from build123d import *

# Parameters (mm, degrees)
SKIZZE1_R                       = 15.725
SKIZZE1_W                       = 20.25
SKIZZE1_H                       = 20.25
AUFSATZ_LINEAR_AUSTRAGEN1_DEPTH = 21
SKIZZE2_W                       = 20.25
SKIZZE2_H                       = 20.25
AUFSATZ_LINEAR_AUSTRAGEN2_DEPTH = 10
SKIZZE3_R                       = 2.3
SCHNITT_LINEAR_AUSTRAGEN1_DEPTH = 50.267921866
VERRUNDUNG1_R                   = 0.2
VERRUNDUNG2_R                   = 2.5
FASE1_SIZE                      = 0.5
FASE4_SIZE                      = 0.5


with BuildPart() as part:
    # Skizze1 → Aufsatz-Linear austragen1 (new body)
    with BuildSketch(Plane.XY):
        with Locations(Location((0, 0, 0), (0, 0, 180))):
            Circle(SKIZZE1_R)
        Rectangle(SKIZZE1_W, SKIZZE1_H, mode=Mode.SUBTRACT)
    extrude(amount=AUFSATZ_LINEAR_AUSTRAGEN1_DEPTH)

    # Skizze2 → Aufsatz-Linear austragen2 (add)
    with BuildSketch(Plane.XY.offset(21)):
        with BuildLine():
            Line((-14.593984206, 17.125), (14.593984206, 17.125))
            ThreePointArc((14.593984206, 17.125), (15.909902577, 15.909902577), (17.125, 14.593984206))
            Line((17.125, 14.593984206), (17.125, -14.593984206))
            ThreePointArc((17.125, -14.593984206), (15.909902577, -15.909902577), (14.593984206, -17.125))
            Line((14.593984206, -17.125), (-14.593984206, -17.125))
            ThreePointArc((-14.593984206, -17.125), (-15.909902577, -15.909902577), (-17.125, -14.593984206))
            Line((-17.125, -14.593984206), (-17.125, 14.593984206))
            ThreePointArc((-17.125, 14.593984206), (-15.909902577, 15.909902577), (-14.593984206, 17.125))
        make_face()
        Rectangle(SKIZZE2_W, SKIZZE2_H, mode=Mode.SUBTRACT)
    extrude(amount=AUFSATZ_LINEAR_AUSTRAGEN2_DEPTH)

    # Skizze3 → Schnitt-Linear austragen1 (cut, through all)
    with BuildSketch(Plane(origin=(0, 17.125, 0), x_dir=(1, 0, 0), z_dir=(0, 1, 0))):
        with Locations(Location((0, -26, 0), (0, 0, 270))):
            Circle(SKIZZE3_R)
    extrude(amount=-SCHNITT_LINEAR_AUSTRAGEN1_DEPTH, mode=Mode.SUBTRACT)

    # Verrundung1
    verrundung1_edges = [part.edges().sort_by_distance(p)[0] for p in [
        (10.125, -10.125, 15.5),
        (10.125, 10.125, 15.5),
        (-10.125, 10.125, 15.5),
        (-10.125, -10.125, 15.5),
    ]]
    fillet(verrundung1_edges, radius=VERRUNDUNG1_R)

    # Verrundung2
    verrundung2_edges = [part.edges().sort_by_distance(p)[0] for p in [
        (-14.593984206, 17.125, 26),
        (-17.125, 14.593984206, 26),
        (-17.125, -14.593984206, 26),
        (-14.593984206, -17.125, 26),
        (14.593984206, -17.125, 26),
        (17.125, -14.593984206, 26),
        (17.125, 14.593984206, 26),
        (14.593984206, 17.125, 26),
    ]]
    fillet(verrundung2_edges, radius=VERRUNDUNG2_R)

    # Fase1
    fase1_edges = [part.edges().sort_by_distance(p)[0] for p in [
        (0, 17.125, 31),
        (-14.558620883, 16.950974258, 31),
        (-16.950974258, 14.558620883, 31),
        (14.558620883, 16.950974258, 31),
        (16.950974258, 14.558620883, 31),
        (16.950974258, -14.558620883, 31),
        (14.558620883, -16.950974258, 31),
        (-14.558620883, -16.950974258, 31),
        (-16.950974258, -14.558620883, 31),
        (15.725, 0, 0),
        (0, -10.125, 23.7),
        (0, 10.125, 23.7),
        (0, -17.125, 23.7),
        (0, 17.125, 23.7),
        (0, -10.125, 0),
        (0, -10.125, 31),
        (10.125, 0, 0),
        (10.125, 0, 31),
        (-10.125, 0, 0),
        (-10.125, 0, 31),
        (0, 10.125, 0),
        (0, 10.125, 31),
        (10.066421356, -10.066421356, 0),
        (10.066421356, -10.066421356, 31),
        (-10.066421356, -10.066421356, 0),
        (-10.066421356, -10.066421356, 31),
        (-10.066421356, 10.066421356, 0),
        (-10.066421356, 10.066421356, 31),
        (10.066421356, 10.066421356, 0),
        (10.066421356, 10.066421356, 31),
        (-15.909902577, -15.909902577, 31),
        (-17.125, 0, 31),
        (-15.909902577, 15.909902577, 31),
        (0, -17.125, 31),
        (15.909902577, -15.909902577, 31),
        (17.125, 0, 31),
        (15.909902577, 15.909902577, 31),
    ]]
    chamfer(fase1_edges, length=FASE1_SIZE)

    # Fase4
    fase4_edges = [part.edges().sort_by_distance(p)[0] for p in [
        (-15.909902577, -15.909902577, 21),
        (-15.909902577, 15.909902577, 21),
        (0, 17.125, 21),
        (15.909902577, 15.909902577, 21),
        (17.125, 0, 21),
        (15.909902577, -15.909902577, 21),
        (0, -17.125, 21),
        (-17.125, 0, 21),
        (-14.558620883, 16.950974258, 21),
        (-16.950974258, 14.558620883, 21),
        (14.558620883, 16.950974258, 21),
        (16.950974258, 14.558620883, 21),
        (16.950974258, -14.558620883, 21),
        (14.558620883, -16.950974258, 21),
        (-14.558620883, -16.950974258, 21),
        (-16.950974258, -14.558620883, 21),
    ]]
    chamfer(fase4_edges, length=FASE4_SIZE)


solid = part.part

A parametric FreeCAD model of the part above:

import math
import FreeCAD as App
import Part
import Sketcher

V = App.Vector


def edges_at(feature, points):
    """Names of the edges that pass closest to the given points."""
    edges = feature.Shape.Edges
    near = lambda p: min(range(len(edges)), key=lambda i: edges[i].distToShape(Part.Vertex(*p))[0])
    return sorted({f"Edge{near(p) + 1}" for p in points})


def add_polygon(sketch, points):
    """Adds a closed chain of lines whose ends are joined by coincident constraints."""
    first, n = sketch.GeometryCount, len(points)
    for a, b in zip(points, points[1:] + points[:1]):
        sketch.addGeometry(Part.LineSegment(App.Vector(*a, 0), App.Vector(*b, 0)), False)
    for i in range(n):
        sketch.addConstraint(Sketcher.Constraint("Coincident", first + i, 2, first + (i + 1) % n, 1))

doc = App.newDocument("Part")
params = doc.addObject("Spreadsheet::Sheet", "Params")
for row, (alias, value) in enumerate([
    ("sketch1_diameter", "31.45 mm"),
    ("sketch1_width", "20.25 mm"),
    ("pad1_length", "21 mm"),
    ("sketch2_radius", "22.5 mm"),
    ("sketch2_width", "20.25 mm"),
    ("pad2_length", "10 mm"),
    ("sketch3_diameter", "4.6 mm"),
    ("fillet_radius", "0.2 mm"),
    ("fillet2_radius", "2.5 mm"),
    ("chamfer_size", "0.5 mm"),
    ("chamfer2_size", "0.5 mm"),
], start=1):
    params.set(f"A{row}", alias)
    params.set(f"B{row}", "=" + value)
    params.setAlias(f"B{row}", alias)

body = doc.addObject("PartDesign::Body", "Body")

sketch1 = doc.addObject("Sketcher::SketchObject", "Sketch")
body.addObject(sketch1)
sketch1.AttachmentSupport = (doc.XY_Plane, [""])
sketch1.MapMode = "FlatFace"
sketch1.addGeometry(Part.Circle(V(0, 0, 0), V(0, 0, 1), 15.725), False)
add_polygon(sketch1, [(10.125, -10.125), (-10.125, -10.125), (-10.125, 10.125), (10.125, 10.125)])
sketch1.addConstraint(Sketcher.Constraint("Horizontal", 1))
sketch1.addConstraint(Sketcher.Constraint("Vertical", 2))
sketch1.addConstraint(Sketcher.Constraint("Horizontal", 3))
sketch1.addConstraint(Sketcher.Constraint("Vertical", 4))
sketch1.addConstraint(Sketcher.Constraint("Coincident", 0, 3, -1, 1))
sketch1.addConstraint(Sketcher.Constraint("Symmetric", 1, 2, 3, 2, -1, 1))
sketch1.addConstraint(Sketcher.Constraint("Equal", 3, 2))
sketch1.addConstraint(Sketcher.Constraint("Diameter", 0, 31.45))
sketch1.addConstraint(Sketcher.Constraint("DistanceX", 1, 2, 1, 1, 20.25))
sketch1.setExpression("Constraints[11]", "Params.sketch1_diameter")
sketch1.setExpression("Constraints[12]", "Params.sketch1_width")
pad1 = doc.addObject("PartDesign::Pad", "Pad")
body.addObject(pad1)
pad1.Profile = sketch1
pad1.setExpression("Length", "Params.pad1_length")

sketch2 = doc.addObject("Sketcher::SketchObject", "Sketch001")
body.addObject(sketch2)
sketch2.AttachmentSupport = (doc.XY_Plane, [""])
sketch2.MapMode = "FlatFace"
sketch2.AttachmentOffset = App.Placement(V(0, 0, 21), App.Rotation())
sketch2.addGeometry(Part.LineSegment(V(14.593984, 17.125, 0), V(-14.593984, 17.125, 0)), False)
sketch2.addGeometry(Part.ArcOfCircle(Part.Circle(V(0, 0, 0), V(0, 0, 1), 22.5), math.radians(130.437751), math.radians(139.562249)), False)
sketch2.addGeometry(Part.LineSegment(V(-17.125, 14.593984, 0), V(-17.125, -14.593984, 0)), False)
sketch2.addGeometry(Part.ArcOfCircle(Part.Circle(V(0, 0, 0), V(0, 0, 1), 22.5), math.radians(-139.562249), math.radians(-130.437751)), False)
sketch2.addGeometry(Part.LineSegment(V(-14.593984, -17.125, 0), V(14.593984, -17.125, 0)), False)
sketch2.addGeometry(Part.ArcOfCircle(Part.Circle(V(0, 0, 0), V(0, 0, 1), 22.5), math.radians(-49.562249), math.radians(-40.437751)), False)
sketch2.addGeometry(Part.LineSegment(V(17.125, -14.593984, 0), V(17.125, 14.593984, 0)), False)
sketch2.addGeometry(Part.ArcOfCircle(Part.Circle(V(0, 0, 0), V(0, 0, 1), 22.5), math.radians(40.437751), math.radians(49.562249)), False)
add_polygon(sketch2, [(-10.125, -10.125), (-10.125, 10.125), (10.125, 10.125), (10.125, -10.125)])
sketch2.addConstraint(Sketcher.Constraint("Coincident", 0, 2, 1, 1))
sketch2.addConstraint(Sketcher.Constraint("Coincident", 1, 2, 2, 1))
sketch2.addConstraint(Sketcher.Constraint("Coincident", 2, 2, 3, 1))
sketch2.addConstraint(Sketcher.Constraint("Coincident", 3, 2, 4, 1))
sketch2.addConstraint(Sketcher.Constraint("Coincident", 4, 2, 5, 1))
sketch2.addConstraint(Sketcher.Constraint("Coincident", 5, 2, 6, 1))
sketch2.addConstraint(Sketcher.Constraint("Coincident", 6, 2, 7, 1))
sketch2.addConstraint(Sketcher.Constraint("Coincident", 7, 2, 0, 1))
sketch2.addConstraint(Sketcher.Constraint("Horizontal", 0))
sketch2.addConstraint(Sketcher.Constraint("Vertical", 2))
sketch2.addConstraint(Sketcher.Constraint("Horizontal", 4))
sketch2.addConstraint(Sketcher.Constraint("Vertical", 6))
sketch2.addConstraint(Sketcher.Constraint("Vertical", 8))
sketch2.addConstraint(Sketcher.Constraint("Horizontal", 9))
sketch2.addConstraint(Sketcher.Constraint("Vertical", 10))
sketch2.addConstraint(Sketcher.Constraint("Horizontal", 11))
sketch2.addConstraint(Sketcher.Constraint("Coincident", 1, 3, -1, 1))
sketch2.addConstraint(Sketcher.Constraint("Coincident", 3, 3, -1, 1))
sketch2.addConstraint(Sketcher.Constraint("Coincident", 5, 3, -1, 1))
sketch2.addConstraint(Sketcher.Constraint("Coincident", 7, 3, -1, 1))
sketch2.addConstraint(Sketcher.Constraint("Equal", 1, 3))
sketch2.addConstraint(Sketcher.Constraint("Equal", 3, 5))
sketch2.addConstraint(Sketcher.Constraint("Equal", 5, 7))
sketch2.addConstraint(Sketcher.Constraint("Symmetric", 8, 2, 10, 2, -1, 1))
sketch2.addConstraint(Sketcher.Constraint("Horizontal", 2, 2, 5, 2))
sketch2.addConstraint(Sketcher.Constraint("Vertical", 0, 2, 3, 2))
sketch2.addConstraint(Sketcher.Constraint("Equal", 4, 2))
sketch2.addConstraint(Sketcher.Constraint("Equal", 11, 8))
sketch2.addConstraint(Sketcher.Constraint("Radius", 1, 22.5))
sketch2.addConstraint(Sketcher.Constraint("DistanceX", 1, 2, 8, 2, 7.0))
sketch2.addConstraint(Sketcher.Constraint("DistanceX", 9, 1, 9, 2, 20.25))
sketch2.setExpression("Constraints[32]", "Params.sketch2_radius")
sketch2.setExpression("Constraints[34]", "Params.sketch2_width")
pad2 = doc.addObject("PartDesign::Pad", "Pad001")
body.addObject(pad2)
pad2.Profile = sketch2
pad2.setExpression("Length", "Params.pad2_length")

sketch3 = doc.addObject("Sketcher::SketchObject", "Sketch002")
body.addObject(sketch3)
sketch3.AttachmentSupport = (doc.XZ_Plane, [""])
sketch3.MapMode = "FlatFace"
sketch3.AttachmentOffset = App.Placement(V(0, 0, -17.125), App.Rotation())
sketch3.addGeometry(Part.Circle(V(0, 26, 0), V(0, 0, 1), 2.3), False)
sketch3.addConstraint(Sketcher.Constraint("PointOnObject", 0, 3, -2))
sketch3.addConstraint(Sketcher.Constraint("Diameter", 0, 4.6))
sketch3.addConstraint(Sketcher.Constraint("DistanceY", -1, 1, 0, 3, 26.0))
sketch3.setExpression("Constraints[1]", "Params.sketch3_diameter")
pocket1 = doc.addObject("PartDesign::Pocket", "Pocket")
body.addObject(pocket1)
pocket1.Profile = sketch3
pocket1.Type = "ThroughAll"
pocket1.Reversed = True
doc.recompute()

fillet = doc.addObject("PartDesign::Fillet", "Fillet")
body.addObject(fillet)
fillet.Base = (pocket1, edges_at(pocket1, [
    (10.125, -10.125, 15.5),
    (10.125, 10.125, 15.5),
    (-10.125, 10.125, 15.5),
    (-10.125, -10.125, 15.5),
]))
fillet.setExpression("Radius", "Params.fillet_radius")
doc.recompute()

fillet2 = doc.addObject("PartDesign::Fillet", "Fillet001")
body.addObject(fillet2)
fillet2.Base = (fillet, edges_at(fillet, [
    (-14.594, 17.125, 26),
    (-17.125, 14.594, 26),
    (-17.125, -14.594, 26),
    (-14.594, -17.125, 26),
    (14.594, -17.125, 26),
    (17.125, -14.594, 26),
    (17.125, 14.594, 26),
    (14.594, 17.125, 26),
]))
fillet2.setExpression("Radius", "Params.fillet2_radius")
doc.recompute()

chamfer = doc.addObject("PartDesign::Chamfer", "Chamfer")
body.addObject(chamfer)
chamfer.Base = (fillet2, edges_at(fillet2, [
    (0, 17.125, 31),
    (-14.559, 16.951, 31),
    (-16.951, 14.559, 31),
    (14.559, 16.951, 31),
    (16.951, 14.559, 31),
    (16.951, -14.559, 31),
    (14.559, -16.951, 31),
    (-14.559, -16.951, 31),
    (-16.951, -14.559, 31),
    (15.725, 0, 0),
    (0, -10.125, 23.7),
    (0, 10.125, 23.7),
    (0, -17.125, 23.7),
    (0, 17.125, 23.7),
    (0, -10.125, 0),
    (0, -10.125, 31),
    (10.125, 0, 0),
    (10.125, 0, 31),
    (-10.125, 0, 0),
    (-10.125, 0, 31),
    (0, 10.125, 0),
    (0, 10.125, 31),
    (10.066, -10.066, 0),
    (10.066, -10.066, 31),
    (-10.066, -10.066, 0),
    (-10.066, -10.066, 31),
    (-10.066, 10.066, 0),
    (-10.066, 10.066, 31),
    (10.066, 10.066, 0),
    (10.066, 10.066, 31),
    (-15.91, -15.91, 31),
    (-17.125, 0, 31),
    (-15.91, 15.91, 31),
    (0, -17.125, 31),
    (15.91, -15.91, 31),
    (17.125, 0, 31),
    (15.91, 15.91, 31),
]))
chamfer.setExpression("Size", "Params.chamfer_size")
doc.recompute()

chamfer2 = doc.addObject("PartDesign::Chamfer", "Chamfer001")
body.addObject(chamfer2)
chamfer2.Base = (chamfer, edges_at(chamfer, [
    (-15.91, -15.91, 21),
    (-15.91, 15.91, 21),
    (0, 17.125, 21),
    (15.91, 15.91, 21),
    (17.125, 0, 21),
    (15.91, -15.91, 21),
    (0, -17.125, 21),
    (-17.125, 0, 21),
    (-14.559, 16.951, 21),
    (-16.951, 14.559, 21),
    (14.559, 16.951, 21),
    (16.951, 14.559, 21),
    (16.951, -14.559, 21),
    (14.559, -16.951, 21),
    (-14.559, -16.951, 21),
    (-16.951, -14.559, 21),
]))
chamfer2.setExpression("Size", "Params.chamfer2_size")

doc.recompute()
